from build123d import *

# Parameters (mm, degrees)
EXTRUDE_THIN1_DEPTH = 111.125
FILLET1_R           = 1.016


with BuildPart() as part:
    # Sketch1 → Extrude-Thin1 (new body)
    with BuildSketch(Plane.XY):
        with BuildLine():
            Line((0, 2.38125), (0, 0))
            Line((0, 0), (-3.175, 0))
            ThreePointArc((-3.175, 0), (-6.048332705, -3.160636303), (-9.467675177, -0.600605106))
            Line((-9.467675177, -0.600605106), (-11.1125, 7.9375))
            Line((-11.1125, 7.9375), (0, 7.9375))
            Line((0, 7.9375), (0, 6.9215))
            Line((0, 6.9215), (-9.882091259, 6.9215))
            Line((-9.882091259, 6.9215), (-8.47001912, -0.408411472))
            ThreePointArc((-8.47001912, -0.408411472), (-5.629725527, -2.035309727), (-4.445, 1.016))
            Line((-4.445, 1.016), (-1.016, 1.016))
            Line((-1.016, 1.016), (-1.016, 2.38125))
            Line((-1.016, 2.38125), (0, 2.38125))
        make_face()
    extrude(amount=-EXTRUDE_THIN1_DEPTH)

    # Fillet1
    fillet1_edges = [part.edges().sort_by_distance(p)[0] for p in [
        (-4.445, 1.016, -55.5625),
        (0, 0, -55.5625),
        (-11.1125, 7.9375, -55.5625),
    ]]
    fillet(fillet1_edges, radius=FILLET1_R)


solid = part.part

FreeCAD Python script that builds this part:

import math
import FreeCAD as App
import Part
import Sketcher
Q = App.Units.Quantity


def edges_at(feature, points):
    """Names of the edges that pass closest to the given points."""
    edges = feature.Shape.Edges
    near = lambda p: min(range(len(edges)), key=lambda i: edges[i].distToShape(Part.Vertex(*p))[0])
    return sorted({f"Edge{near(p) + 1}" for p in points})

doc = App.newDocument("Part")
body = doc.addObject("PartDesign::Body", "Body")

sketch1 = body.newObject("Sketcher::SketchObject", "Sketch")
sketch1.AttachmentSupport = (doc.getObject("XY_Plane"), [""])
sketch1.MapMode = "FlatFace"
sketch1.addGeometry(Part.LineSegment(App.Vector(0, 0, 0), App.Vector(0, 2.4, 0)), False)
sketch1.addGeometry(Part.LineSegment(App.Vector(0, 2.4, 0), App.Vector(-1, 2.4, 0)), False)
sketch1.addGeometry(Part.LineSegment(App.Vector(-1, 2.4, 0), App.Vector(-1, 1, 0)), False)
sketch1.addGeometry(Part.LineSegment(App.Vector(-1, 1, 0), App.Vector(-4.4, 1, 0)), False)
sketch1.addGeometry(Part.ArcOfCircle(Part.Circle(App.Vector(-6.3, 0, 0), App.Vector(0, 0, 1), 2.2), math.radians(-169), math.radians(28)), False)
sketch1.addGeometry(Part.LineSegment(App.Vector(-8.5, -0.4, 0), App.Vector(-9.9, 6.9, 0)), False)
sketch1.addGeometry(Part.LineSegment(App.Vector(-9.9, 6.9, 0), App.Vector(0, 6.9, 0)), False)
sketch1.addGeometry(Part.LineSegment(App.Vector(0, 6.9, 0), App.Vector(0, 7.9, 0)), False)
sketch1.addGeometry(Part.LineSegment(App.Vector(0, 7.9, 0), App.Vector(-11.1, 7.9, 0)), False)
sketch1.addGeometry(Part.LineSegment(App.Vector(-11.1, 7.9, 0), App.Vector(-9.5, -0.6, 0)), False)
sketch1.addGeometry(Part.ArcOfCircle(Part.Circle(App.Vector(-6.3, 0, 0), App.Vector(0, 0, 1), 3.2), math.radians(-169), math.radians(0)), False)
sketch1.addGeometry(Part.LineSegment(App.Vector(-3.2, 0, 0), App.Vector(0, 0, 0)), False)
sketch1.addConstraint(Sketcher.Constraint("Coincident", 0, 2, 1, 1))
sketch1.addConstraint(Sketcher.Constraint("Coincident", 1, 2, 2, 1))
sketch1.addConstraint(Sketcher.Constraint("Coincident", 2, 2, 3, 1))
sketch1.addConstraint(Sketcher.Constraint("Coincident", 3, 2, 4, 2))
sketch1.addConstraint(Sketcher.Constraint("Tangent", 4, 1, 5, 1))
sketch1.addConstraint(Sketcher.Constraint("Coincident", 5, 2, 6, 1))
sketch1.addConstraint(Sketcher.Constraint("Coincident", 6, 2, 7, 1))
sketch1.addConstraint(Sketcher.Constraint("Coincident", 7, 2, 8, 1))
sketch1.addConstraint(Sketcher.Constraint("Coincident", 8, 2, 9, 1))
sketch1.addConstraint(Sketcher.Constraint("Tangent", 9, 2, 10, 1))
sketch1.addConstraint(Sketcher.Constraint("Coincident", 10, 2, 11, 1))
sketch1.addConstraint(Sketcher.Constraint("Coincident", 11, 2, 0, 1))
sketch1.addConstraint(Sketcher.Constraint("Vertical", 0))
sketch1.addConstraint(Sketcher.Constraint("Horizontal", 1))
sketch1.addConstraint(Sketcher.Constraint("Vertical", 2))
sketch1.addConstraint(Sketcher.Constraint("Horizontal", 3))
sketch1.addConstraint(Sketcher.Constraint("Horizontal", 6))
sketch1.addConstraint(Sketcher.Constraint("Vertical", 7))
sketch1.addConstraint(Sketcher.Constraint("Horizontal", 8))
sketch1.addConstraint(Sketcher.Constraint("Horizontal", 11))
sketch1.addConstraint(Sketcher.Constraint("Coincident", 11, 2, -1, 1))
sketch1.addConstraint(Sketcher.Constraint("Coincident", 10, 3, 4, 3))
sketch1.addConstraint(Sketcher.Constraint("PointOnObject", 4, 3, -1))
sketch1.addConstraint(Sketcher.Constraint("PointOnObject", 6, 2, -2))
sketch1.addConstraint(Sketcher.Constraint("Parallel", 5, 9))
sketch1.addConstraint(Sketcher.Constraint("Equal", 1, 7))
sketch1.addConstraint(Sketcher.Constraint("Radius", 4, Q("0.085 in")))
sketch1.addConstraint(Sketcher.Constraint("Radius", 10, Q("0.125 in")))
sketch1.addConstraint(Sketcher.Constraint("DistanceX", 1, 2, 1, 1, Q("0.04 in")))
sketch1.addConstraint(Sketcher.Constraint("DistanceX", 3, 2, 3, 1, Q("0.135 in")))
sketch1.addConstraint(Sketcher.Constraint("DistanceX", 8, 2, 8, 1, Q("0.4375 in")))
sketch1.addConstraint(Sketcher.Constraint("DistanceX", 11, 1, 11, 2, Q("0.125 in")))
sketch1.addConstraint(Sketcher.Constraint("DistanceY", 0, 1, 0, 2, Q("0.09375 in")))
sketch1.addConstraint(Sketcher.Constraint("DistanceY", -1, 1, 7, 2, Q("0.3125 in")))
pad1 = body.newObject("PartDesign::Pad", "Pad")
pad1.Profile = sketch1
pad1.Length = Q("4.375 in")
pad1.Reversed = True
doc.recompute()

fillet = body.newObject("PartDesign::Fillet", "Fillet")
fillet.Base = (pad1, edges_at(pad1, [(-4.445, 1.016, -55.562), (0, 0, -55.562), (-11.113, 7.938, -55.562)]))
fillet.Radius = Q("0.04 in")

doc.recompute()
